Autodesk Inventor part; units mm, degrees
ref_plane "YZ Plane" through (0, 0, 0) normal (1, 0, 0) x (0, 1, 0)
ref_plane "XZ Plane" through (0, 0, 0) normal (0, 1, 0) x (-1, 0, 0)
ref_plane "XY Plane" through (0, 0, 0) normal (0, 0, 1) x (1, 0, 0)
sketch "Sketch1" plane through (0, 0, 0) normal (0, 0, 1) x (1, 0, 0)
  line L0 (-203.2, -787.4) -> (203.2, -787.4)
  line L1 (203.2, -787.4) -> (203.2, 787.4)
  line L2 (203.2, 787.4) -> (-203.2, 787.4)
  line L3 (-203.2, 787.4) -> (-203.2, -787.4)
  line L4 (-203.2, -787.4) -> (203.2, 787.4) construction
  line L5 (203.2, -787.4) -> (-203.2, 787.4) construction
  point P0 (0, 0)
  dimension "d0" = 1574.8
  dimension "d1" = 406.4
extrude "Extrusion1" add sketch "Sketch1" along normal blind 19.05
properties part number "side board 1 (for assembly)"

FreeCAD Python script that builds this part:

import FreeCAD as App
import Part
import Sketcher
from FreeCAD import Vector
Q = App.Units.Quantity

doc = App.newDocument("Part")
body = doc.addObject("PartDesign::Body", "Body")

# Sketch on XY plane
sketch1 = body.newObject("Sketcher::SketchObject", "Sketch")
sketch1.AttachmentSupport = (doc.getObject("XY_Plane"), [""])
sketch1.MapMode = "FlatFace"
sketch1.addGeometry([
    Part.LineSegment(Vector(-203, 787, 0), Vector(-203, -787, 0)),
    Part.LineSegment(Vector(-203, -787, 0), Vector(203, -787, 0)),
    Part.LineSegment(Vector(203, -787, 0), Vector(203, 787, 0)),
    Part.LineSegment(Vector(203, 787, 0), Vector(-203, 787, 0)),
], False)
sketch1.addConstraint([
    Sketcher.Constraint("Coincident", 0, 2, 1, 1),
    Sketcher.Constraint("Coincident", 1, 2, 2, 1),
    Sketcher.Constraint("Coincident", 2, 2, 3, 1),
    Sketcher.Constraint("Coincident", 3, 2, 0, 1),
    Sketcher.Constraint("Vertical", 0),
    Sketcher.Constraint("Horizontal", 1),
    Sketcher.Constraint("Vertical", 2),
    Sketcher.Constraint("Horizontal", 3),
    Sketcher.Constraint("Symmetric", 0, 2, 2, 2, -1, 1),
    Sketcher.Constraint("DistanceX", 1, 1, 1, 2, Q("16 in")),
    Sketcher.Constraint("DistanceY", 0, 2, 0, 1, Q("62 in")),
])
pad1 = body.newObject("PartDesign::Pad", "Pad")
pad1.Profile = sketch1
pad1.Length = Q("0.75 in")

doc.recompute()
